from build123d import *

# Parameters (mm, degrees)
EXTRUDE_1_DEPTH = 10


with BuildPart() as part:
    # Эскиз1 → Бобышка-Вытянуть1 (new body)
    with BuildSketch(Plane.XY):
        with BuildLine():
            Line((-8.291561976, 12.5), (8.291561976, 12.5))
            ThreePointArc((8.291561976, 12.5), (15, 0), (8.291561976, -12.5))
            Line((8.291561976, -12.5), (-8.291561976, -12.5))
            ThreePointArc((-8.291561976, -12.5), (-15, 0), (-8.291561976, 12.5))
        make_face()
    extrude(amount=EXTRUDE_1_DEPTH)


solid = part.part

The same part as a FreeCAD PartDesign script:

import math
import FreeCAD as App
import Part
import Sketcher
Q = App.Units.Quantity

doc = App.newDocument("Part")
body = doc.addObject("PartDesign::Body", "Body")

sketch1 = body.newObject("Sketcher::SketchObject", "Sketch")
sketch1.AttachmentSupport = (doc.getObject("XY_Plane"), [""])
sketch1.MapMode = "FlatFace"
sketch1.addGeometry([
    Part.LineSegment(App.Vector(8, 12, 0), App.Vector(-8, 12, 0)),
    Part.ArcOfCircle(Part.Circle(App.Vector(0, 0, 0), App.Vector(0, 0, 1), 15), math.radians(124), math.radians(236)),
    Part.LineSegment(App.Vector(-8, -12, 0), App.Vector(8, -12, 0)),
    Part.ArcOfCircle(Part.Circle(App.Vector(0, 0, 0), App.Vector(0, 0, 1), 15), math.radians(-56), math.radians(56)),
], False)
sketch1.addConstraint([
    Sketcher.Constraint("Coincident", 0, 2, 1, 1),
    Sketcher.Constraint("Coincident", 1, 2, 2, 1),
    Sketcher.Constraint("Coincident", 2, 2, 3, 1),
    Sketcher.Constraint("Coincident", 3, 2, 0, 1),
    Sketcher.Constraint("Horizontal", 0),
    Sketcher.Constraint("Horizontal", 2),
    Sketcher.Constraint("Coincident", 1, 3, -1, 1),
    Sketcher.Constraint("Coincident", 3, 3, -1, 1),
    Sketcher.Constraint("Equal", 1, 3),
    Sketcher.Constraint("Vertical", 0, 2, 1, 2),
    Sketcher.Constraint("Radius", 1, Q("15 mm")),
    Sketcher.Constraint("DistanceY", 1, 2, 0, 2, Q("25 mm")),
])
pad1 = body.newObject("PartDesign::Pad", "Pad")
pad1.Profile = sketch1
pad1.Length = 10

doc.recompute()
